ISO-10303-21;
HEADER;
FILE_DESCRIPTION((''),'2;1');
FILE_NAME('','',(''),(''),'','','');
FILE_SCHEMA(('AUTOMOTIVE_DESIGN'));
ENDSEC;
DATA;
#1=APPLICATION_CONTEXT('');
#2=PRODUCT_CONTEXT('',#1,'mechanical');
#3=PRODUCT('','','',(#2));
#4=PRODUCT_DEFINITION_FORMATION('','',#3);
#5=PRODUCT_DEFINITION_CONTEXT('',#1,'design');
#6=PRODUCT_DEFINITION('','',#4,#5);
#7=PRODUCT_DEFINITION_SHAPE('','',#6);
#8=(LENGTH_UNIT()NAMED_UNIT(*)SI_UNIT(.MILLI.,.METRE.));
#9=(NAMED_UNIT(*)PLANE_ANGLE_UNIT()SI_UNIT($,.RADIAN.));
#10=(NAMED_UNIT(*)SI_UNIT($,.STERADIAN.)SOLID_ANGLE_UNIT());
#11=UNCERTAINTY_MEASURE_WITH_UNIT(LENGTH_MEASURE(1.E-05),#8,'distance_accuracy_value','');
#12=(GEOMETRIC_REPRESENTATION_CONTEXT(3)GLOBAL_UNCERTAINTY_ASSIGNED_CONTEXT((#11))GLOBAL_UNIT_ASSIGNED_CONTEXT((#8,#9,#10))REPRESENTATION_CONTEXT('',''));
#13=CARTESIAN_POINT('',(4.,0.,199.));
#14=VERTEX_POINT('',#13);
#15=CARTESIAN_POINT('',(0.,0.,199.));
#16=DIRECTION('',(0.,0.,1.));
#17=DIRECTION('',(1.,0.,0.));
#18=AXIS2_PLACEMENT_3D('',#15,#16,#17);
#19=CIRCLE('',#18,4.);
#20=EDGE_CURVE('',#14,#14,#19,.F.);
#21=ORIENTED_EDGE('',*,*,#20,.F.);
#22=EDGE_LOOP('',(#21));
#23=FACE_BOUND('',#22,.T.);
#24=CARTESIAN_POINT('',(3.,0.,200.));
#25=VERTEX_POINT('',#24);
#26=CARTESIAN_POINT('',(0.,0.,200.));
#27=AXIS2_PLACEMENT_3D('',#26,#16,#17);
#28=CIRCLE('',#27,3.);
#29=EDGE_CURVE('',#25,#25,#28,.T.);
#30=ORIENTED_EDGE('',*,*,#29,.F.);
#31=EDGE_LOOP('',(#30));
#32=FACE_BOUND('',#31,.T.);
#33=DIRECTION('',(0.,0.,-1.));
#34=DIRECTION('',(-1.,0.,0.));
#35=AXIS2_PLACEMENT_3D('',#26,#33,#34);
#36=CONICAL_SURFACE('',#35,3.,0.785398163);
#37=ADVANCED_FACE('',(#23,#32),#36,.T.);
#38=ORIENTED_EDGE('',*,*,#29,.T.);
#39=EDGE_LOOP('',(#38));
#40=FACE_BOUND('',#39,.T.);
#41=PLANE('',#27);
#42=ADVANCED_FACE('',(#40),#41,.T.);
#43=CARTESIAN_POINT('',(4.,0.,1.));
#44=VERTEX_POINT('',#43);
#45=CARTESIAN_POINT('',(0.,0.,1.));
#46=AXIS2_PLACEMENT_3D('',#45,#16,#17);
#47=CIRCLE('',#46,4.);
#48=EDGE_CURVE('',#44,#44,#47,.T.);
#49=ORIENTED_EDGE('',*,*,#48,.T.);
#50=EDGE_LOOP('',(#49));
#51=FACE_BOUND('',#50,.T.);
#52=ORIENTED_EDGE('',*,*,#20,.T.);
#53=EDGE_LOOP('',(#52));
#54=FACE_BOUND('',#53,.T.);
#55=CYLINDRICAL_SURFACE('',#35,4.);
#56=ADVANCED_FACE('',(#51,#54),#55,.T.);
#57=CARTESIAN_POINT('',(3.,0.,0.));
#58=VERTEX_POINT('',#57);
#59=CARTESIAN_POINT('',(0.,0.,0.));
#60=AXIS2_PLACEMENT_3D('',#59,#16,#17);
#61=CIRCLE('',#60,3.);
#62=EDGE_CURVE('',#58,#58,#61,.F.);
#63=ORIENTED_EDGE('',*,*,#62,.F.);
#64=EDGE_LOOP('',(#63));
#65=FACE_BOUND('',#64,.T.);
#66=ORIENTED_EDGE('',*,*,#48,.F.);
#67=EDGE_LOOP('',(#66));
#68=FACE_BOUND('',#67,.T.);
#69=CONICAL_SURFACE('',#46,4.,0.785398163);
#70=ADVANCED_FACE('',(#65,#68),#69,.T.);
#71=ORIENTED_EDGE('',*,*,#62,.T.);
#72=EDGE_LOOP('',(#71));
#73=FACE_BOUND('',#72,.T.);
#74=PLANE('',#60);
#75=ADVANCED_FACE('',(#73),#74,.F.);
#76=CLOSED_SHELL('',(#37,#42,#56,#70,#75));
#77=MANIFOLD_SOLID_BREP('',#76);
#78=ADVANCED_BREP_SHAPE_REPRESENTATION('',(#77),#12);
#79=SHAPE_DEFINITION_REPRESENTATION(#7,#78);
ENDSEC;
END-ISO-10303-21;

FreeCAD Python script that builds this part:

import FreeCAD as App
import Part
import Sketcher
from FreeCAD import Vector


def edges_at(feature, points):
    """Names of the edges that pass closest to the given points."""
    edges = feature.Shape.Edges
    near = lambda p: min(range(len(edges)), key=lambda i: edges[i].distToShape(Part.Vertex(*p))[0])
    return sorted({f"Edge{near(p) + 1}" for p in points})

doc = App.newDocument("Part")
body = doc.addObject("PartDesign::Body", "Body")

# Sketch on XY plane
sketch1 = body.newObject("Sketcher::SketchObject", "Sketch")
sketch1.AttachmentSupport = (doc.getObject("XY_Plane"), [""])
sketch1.MapMode = "FlatFace"
sketch1.addGeometry(Part.Circle(Vector(0, 0, 0), Vector(0, 0, 1), 4), False)
sketch1.addConstraint([
    Sketcher.Constraint("Coincident", 0, 3, -1, 1),
    Sketcher.Constraint("Diameter", 0, 8.0),
])
pad1 = body.newObject("PartDesign::Pad", "Pad")
pad1.Profile = sketch1
pad1.Length = 200
doc.recompute()

chamfer = body.newObject("PartDesign::Chamfer", "Chamfer")
chamfer.Base = (pad1, edges_at(pad1, [(-4, 0, 0), (-4, 0, 200)]))
chamfer.Size = 1

doc.recompute()
